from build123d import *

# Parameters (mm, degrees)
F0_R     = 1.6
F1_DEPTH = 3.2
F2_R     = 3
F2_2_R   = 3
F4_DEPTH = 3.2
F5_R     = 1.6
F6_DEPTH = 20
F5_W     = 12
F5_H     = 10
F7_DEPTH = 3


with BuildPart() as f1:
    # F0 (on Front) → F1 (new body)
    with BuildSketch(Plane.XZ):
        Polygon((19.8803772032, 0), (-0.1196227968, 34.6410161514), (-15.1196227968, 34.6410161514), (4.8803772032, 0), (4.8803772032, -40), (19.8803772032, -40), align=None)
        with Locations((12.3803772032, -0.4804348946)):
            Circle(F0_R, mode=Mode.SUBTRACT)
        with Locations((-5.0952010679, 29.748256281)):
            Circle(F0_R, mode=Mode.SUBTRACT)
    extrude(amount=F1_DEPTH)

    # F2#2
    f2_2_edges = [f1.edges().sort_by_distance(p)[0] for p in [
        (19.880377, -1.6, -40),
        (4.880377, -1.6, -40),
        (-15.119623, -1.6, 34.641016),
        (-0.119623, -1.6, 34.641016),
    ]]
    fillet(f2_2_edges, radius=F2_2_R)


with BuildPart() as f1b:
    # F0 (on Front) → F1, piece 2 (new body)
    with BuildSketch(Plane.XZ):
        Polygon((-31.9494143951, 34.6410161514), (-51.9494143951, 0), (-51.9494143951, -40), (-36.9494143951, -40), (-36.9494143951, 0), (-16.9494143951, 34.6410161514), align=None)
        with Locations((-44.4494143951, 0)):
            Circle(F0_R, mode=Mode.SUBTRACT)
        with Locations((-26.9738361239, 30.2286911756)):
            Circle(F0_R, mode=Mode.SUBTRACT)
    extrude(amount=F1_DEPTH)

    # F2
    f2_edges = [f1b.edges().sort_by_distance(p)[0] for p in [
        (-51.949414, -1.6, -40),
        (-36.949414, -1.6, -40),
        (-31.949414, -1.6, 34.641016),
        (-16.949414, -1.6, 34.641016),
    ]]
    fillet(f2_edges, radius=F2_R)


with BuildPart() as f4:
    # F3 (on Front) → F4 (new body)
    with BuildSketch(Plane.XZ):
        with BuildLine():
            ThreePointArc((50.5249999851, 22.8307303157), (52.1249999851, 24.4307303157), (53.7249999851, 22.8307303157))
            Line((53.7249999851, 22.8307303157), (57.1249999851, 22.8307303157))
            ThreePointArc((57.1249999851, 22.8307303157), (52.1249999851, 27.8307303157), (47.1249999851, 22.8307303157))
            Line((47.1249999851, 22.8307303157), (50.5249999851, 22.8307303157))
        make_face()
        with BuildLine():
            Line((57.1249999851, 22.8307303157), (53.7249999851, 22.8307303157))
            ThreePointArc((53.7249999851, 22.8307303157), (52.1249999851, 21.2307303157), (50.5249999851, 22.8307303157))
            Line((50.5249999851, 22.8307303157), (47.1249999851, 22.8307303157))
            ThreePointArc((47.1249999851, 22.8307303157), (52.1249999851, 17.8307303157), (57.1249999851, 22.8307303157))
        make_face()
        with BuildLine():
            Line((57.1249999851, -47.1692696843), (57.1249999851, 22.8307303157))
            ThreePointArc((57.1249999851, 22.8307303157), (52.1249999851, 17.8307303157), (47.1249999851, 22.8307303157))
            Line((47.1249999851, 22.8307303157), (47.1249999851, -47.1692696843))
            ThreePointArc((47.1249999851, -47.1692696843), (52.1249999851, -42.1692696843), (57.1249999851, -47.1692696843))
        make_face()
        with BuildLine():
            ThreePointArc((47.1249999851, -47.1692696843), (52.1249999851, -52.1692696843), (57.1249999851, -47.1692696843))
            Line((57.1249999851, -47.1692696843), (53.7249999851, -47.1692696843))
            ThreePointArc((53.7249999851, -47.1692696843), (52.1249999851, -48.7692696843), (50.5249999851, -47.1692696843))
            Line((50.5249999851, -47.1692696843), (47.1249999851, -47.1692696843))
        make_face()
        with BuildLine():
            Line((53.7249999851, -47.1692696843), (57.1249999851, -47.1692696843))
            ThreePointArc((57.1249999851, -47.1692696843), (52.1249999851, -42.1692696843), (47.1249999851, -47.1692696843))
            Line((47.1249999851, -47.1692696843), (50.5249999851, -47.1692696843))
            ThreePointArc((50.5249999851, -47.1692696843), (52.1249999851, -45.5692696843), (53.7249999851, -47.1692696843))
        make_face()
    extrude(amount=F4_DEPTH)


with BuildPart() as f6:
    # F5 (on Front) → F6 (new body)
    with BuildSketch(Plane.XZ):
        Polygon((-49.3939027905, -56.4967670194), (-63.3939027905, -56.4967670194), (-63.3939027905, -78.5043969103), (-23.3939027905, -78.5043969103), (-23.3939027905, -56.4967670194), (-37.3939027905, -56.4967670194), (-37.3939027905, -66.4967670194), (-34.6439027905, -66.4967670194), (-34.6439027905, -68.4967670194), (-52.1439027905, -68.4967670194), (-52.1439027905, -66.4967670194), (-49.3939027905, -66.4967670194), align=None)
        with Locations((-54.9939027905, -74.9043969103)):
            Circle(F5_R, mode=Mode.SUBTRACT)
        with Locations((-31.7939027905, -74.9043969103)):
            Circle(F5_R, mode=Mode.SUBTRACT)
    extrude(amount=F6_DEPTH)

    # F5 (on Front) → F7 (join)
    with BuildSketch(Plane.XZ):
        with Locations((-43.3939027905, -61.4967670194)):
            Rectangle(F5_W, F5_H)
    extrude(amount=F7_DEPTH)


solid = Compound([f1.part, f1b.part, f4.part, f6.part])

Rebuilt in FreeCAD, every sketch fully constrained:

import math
import FreeCAD as App
import Part
import Sketcher
from FreeCAD import Vector
Q = App.Units.Quantity


def edges_at(feature, points):
    """Names of the edges that pass closest to the given points."""
    edges = feature.Shape.Edges
    near = lambda p: min(range(len(edges)), key=lambda i: edges[i].distToShape(Part.Vertex(*p))[0])
    return sorted({f"Edge{near(p) + 1}" for p in points})


def add_polygon(sketch, points):
    """Adds a closed chain of lines whose ends are joined by coincident constraints."""
    first, n = sketch.GeometryCount, len(points)
    for a, b in zip(points, points[1:] + points[:1]):
        sketch.addGeometry(Part.LineSegment(App.Vector(*a, 0), App.Vector(*b, 0)), False)
    for i in range(n):
        sketch.addConstraint(Sketcher.Constraint("Coincident", first + i, 2, first + (i + 1) % n, 1))

doc = App.newDocument("Part")
params = doc.addObject("Spreadsheet::Sheet", "Params")
for row, (alias, value) in enumerate([
    ("sketch1_diameter", "3.2 mm"),
    ("sketch1_width", "15 mm"),
    ("sketch1_height", "40 mm"),
    ("sketch1_length", "40 mm"),
    ("pad1_length", "3.2 mm"),
    ("fillet_radius", "3 mm"),
    ("sketch2_diameter", "3.2 mm"),
    ("sketch2_width", "15 mm"),
    ("sketch2_height", "40 mm"),
    ("sketch2_length", "40 mm"),
    ("pad2_length", "3.2 mm"),
    ("fillet2_radius", "3 mm"),
    ("sketch3_radius", "5 mm"),
    ("sketch3_diameter", "3.2 mm"),
    ("sketch3_height", "70 mm"),
    ("pad3_length", "3.2 mm"),
    ("sketch4_diameter", "3.2 mm"),
    ("sketch4_width", "14 mm"),
    ("sketch4_width2", "40 mm"),
    ("sketch4_height", "10 mm"),
    ("sketch4_height2", "2 mm"),
    ("pad4_length", "20 mm"),
    ("sketch5_width", "12 mm"),
    ("sketch5_height", "10 mm"),
    ("pad5_length", "3 mm"),
], start=1):
    params.set(f"A{row}", alias)
    params.set(f"B{row}", "=" + value)
    params.setAlias(f"B{row}", alias)

body = doc.addObject("PartDesign::Body", "Body")

sketch1 = body.newObject("Sketcher::SketchObject", "Sketch")
sketch1.AttachmentSupport = (doc.getObject("XZ_Plane"), [""])
sketch1.MapMode = "FlatFace"
add_polygon(sketch1, [(19.880377, 0), (-0.119623, 34.641016), (-15.119623, 34.641016), (4.880377, 0), (4.880377, -40), (19.880377, -40)])
sketch1.addGeometry(Part.Circle(Vector(12.380377, -0.480435, 0), Vector(0, 0, 1), 1.6), False)
sketch1.addGeometry(Part.Circle(Vector(-5.095201, 29.748256, 0), Vector(0, 0, 1), 1.6), False)
sketch1.addConstraint([
    Sketcher.Constraint("Horizontal", 1),
    Sketcher.Constraint("Vertical", 3),
    Sketcher.Constraint("Horizontal", 4),
    Sketcher.Constraint("Vertical", 5),
    Sketcher.Constraint("Equal", 6, 7),
    Sketcher.Constraint("PointOnObject", 2, 2, -1),
    Sketcher.Constraint("PointOnObject", 5, 2, -1),
    Sketcher.Constraint("Parallel", 0, 2),
    Sketcher.Constraint("Diameter", 6, Q("3.2 mm")),
    Sketcher.Constraint("DistanceX", 1, 2, 1, 1, Q("15 mm")),
    Sketcher.Constraint("DistanceY", 3, 2, 3, 1, Q("40 mm")),
    Sketcher.Constraint("Angle", 0, Q("120 deg")),
    Sketcher.Constraint("Distance", 0, Q("40 mm")),
    Sketcher.Constraint("DistanceX", 0, 2, 6, 3, Q("12.5 mm")),
    Sketcher.Constraint("DistanceX", 7, 3, -1, 1, Q("5.095201 mm")),
    Sketcher.Constraint("DistanceX", 7, 3, 6, 3, Q("17.475578 mm")),
    Sketcher.Constraint("DistanceY", 6, 3, 7, 3, Q("30.228691 mm")),
    Sketcher.Constraint("DistanceY", 7, 3, 0, 2, Q("4.89276 mm")),
])
sketch1.setExpression("Constraints[14]", "Params.sketch1_diameter")
sketch1.setExpression("Constraints[15]", "Params.sketch1_width")
sketch1.setExpression("Constraints[16]", "Params.sketch1_height")
sketch1.setExpression("Constraints[18]", "Params.sketch1_length")
pad1 = body.newObject("PartDesign::Pad", "Pad")
pad1.Profile = sketch1
pad1.setExpression("Length", "Params.pad1_length")
doc.recompute()

fillet = body.newObject("PartDesign::Fillet", "Fillet")
fillet.Base = (pad1, edges_at(pad1, [
    (19.88, -1.6, -40),
    (4.88, -1.6, -40),
    (-15.12, -1.6, 34.641),
    (-0.12, -1.6, 34.641),
]))
fillet.setExpression("Radius", "Params.fillet_radius")
body2 = doc.addObject("PartDesign::Body", "Body001")

sketch2 = body2.newObject("Sketcher::SketchObject", "Sketch001")
sketch2.AttachmentSupport = (doc.getObject("XZ_Plane001"), [""])
sketch2.MapMode = "FlatFace"
add_polygon(sketch2, [(-31.949414, 34.641016), (-51.949414, 0), (-51.949414, -40), (-36.949414, -40), (-36.949414, 0), (-16.949414, 34.641016)])
sketch2.addGeometry(Part.Circle(Vector(-44.449414, 0, 0), Vector(0, 0, 1), 1.6), False)
sketch2.addGeometry(Part.Circle(Vector(-26.973836, 30.228691, 0), Vector(0, 0, 1), 1.6), False)
sketch2.addConstraint([
    Sketcher.Constraint("Vertical", 1),
    Sketcher.Constraint("Horizontal", 2),
    Sketcher.Constraint("Vertical", 3),
    Sketcher.Constraint("Horizontal", 5),
    Sketcher.Constraint("Equal", 6, 7),
    Sketcher.Constraint("PointOnObject", 6, 3, -1),
    Sketcher.Constraint("PointOnObject", 0, 2, -1),
    Sketcher.Constraint("PointOnObject", 3, 2, -1),
    Sketcher.Constraint("Parallel", 0, 4),
    Sketcher.Constraint("Diameter", 6, Q("3.2 mm")),
    Sketcher.Constraint("DistanceX", 2, 1, 2, 2, Q("15 mm")),
    Sketcher.Constraint("DistanceY", 1, 2, 1, 1, Q("40 mm")),
    Sketcher.Constraint("Angle", 0, Q("-120 deg")),
    Sketcher.Constraint("Distance", 0, Q("40 mm")),
    Sketcher.Constraint("DistanceX", 0, 2, 6, 3, Q("7.5 mm")),
    Sketcher.Constraint("DistanceY", -1, 1, 7, 3, Q("30.228691 mm")),
    Sketcher.Constraint("DistanceX", 6, 3, 7, 3, Q("17.475578 mm")),
    Sketcher.Constraint("DistanceX", 6, 3, -1, 1, Q("44.449414 mm")),
])
sketch2.setExpression("Constraints[15]", "Params.sketch2_diameter")
sketch2.setExpression("Constraints[16]", "Params.sketch2_width")
sketch2.setExpression("Constraints[17]", "Params.sketch2_height")
sketch2.setExpression("Constraints[19]", "Params.sketch2_length")
pad2 = body2.newObject("PartDesign::Pad", "Pad001")
pad2.Profile = sketch2
pad2.setExpression("Length", "Params.pad2_length")
doc.recompute()

fillet2 = body2.newObject("PartDesign::Fillet", "Fillet001")
fillet2.Base = (pad2, edges_at(pad2, [
    (-51.949, -1.6, -40),
    (-36.949, -1.6, -40),
    (-31.949, -1.6, 34.641),
    (-16.949, -1.6, 34.641),
]))
fillet2.setExpression("Radius", "Params.fillet2_radius")
body3 = doc.addObject("PartDesign::Body", "Body002")

sketch3 = body3.newObject("Sketcher::SketchObject", "Sketch002")
sketch3.AttachmentSupport = (doc.getObject("XZ_Plane002"), [""])
sketch3.MapMode = "FlatFace"
sketch3.addGeometry([
    Part.ArcOfCircle(Part.Circle(Vector(52.125, 22.83073, 0), Vector(0, 0, 1), 5), math.radians(0), math.radians(180)),
    Part.LineSegment(Vector(47.125, 22.83073, 0), Vector(47.125, -47.16927, 0)),
    Part.ArcOfCircle(Part.Circle(Vector(52.125, -47.16927, 0), Vector(0, 0, 1), 5), math.radians(180), math.radians(360)),
    Part.LineSegment(Vector(57.125, -47.16927, 0), Vector(57.125, 22.83073, 0)),
    Part.Circle(Vector(52.125, 22.83073, 0), Vector(0, 0, 1), 1.6),
    Part.Circle(Vector(52.125, -47.16927, 0), Vector(0, 0, 1), 1.6),
], False)
sketch3.addConstraint([
    Sketcher.Constraint("Tangent", 0, 2, 1, 1),
    Sketcher.Constraint("Tangent", 1, 2, 2, 1),
    Sketcher.Constraint("Tangent", 2, 2, 3, 1),
    Sketcher.Constraint("Tangent", 3, 2, 0, 1),
    Sketcher.Constraint("Vertical", 1),
    Sketcher.Constraint("Vertical", 3),
    Sketcher.Constraint("Coincident", 4, 3, 0, 3),
    Sketcher.Constraint("Coincident", 5, 3, 2, 3),
    Sketcher.Constraint("Equal", 4, 5),
    Sketcher.Constraint("Radius", 0, Q("5 mm")),
    Sketcher.Constraint("Diameter", 4, Q("3.2 mm")),
    Sketcher.Constraint("DistanceY", 1, 2, 1, 1, Q("70 mm")),
    Sketcher.Constraint("DistanceX", -1, 1, 0, 3, Q("52.125 mm")),
    Sketcher.Constraint("DistanceY", -1, 1, 0, 3, Q("22.83073 mm")),
])
sketch3.setExpression("Constraints[9]", "Params.sketch3_radius")
sketch3.setExpression("Constraints[10]", "Params.sketch3_diameter")
sketch3.setExpression("Constraints[11]", "Params.sketch3_height")
pad3 = body3.newObject("PartDesign::Pad", "Pad002")
pad3.Profile = sketch3
pad3.setExpression("Length", "Params.pad3_length")
body4 = doc.addObject("PartDesign::Body", "Body003")

sketch4 = body4.newObject("Sketcher::SketchObject", "Sketch003")
sketch4.AttachmentSupport = (doc.getObject("XZ_Plane003"), [""])
sketch4.MapMode = "FlatFace"
add_polygon(sketch4, [(-49.393903, -56.496767), (-63.393903, -56.496767), (-63.393903, -78.504397), (-23.393903, -78.504397), (-23.393903, -56.496767), (-37.393903, -56.496767), (-37.393903, -66.496767), (-34.643903, -66.496767), (-34.643903, -68.496767), (-52.143903, -68.496767), (-52.143903, -66.496767), (-49.393903, -66.496767)])
sketch4.addGeometry(Part.Circle(Vector(-54.993903, -74.904397, 0), Vector(0, 0, 1), 1.6), False)
sketch4.addGeometry(Part.Circle(Vector(-31.793903, -74.904397, 0), Vector(0, 0, 1), 1.6), False)
sketch4.addConstraint([
    Sketcher.Constraint("Horizontal", 0),
    Sketcher.Constraint("Vertical", 1),
    Sketcher.Constraint("Horizontal", 2),
    Sketcher.Constraint("Vertical", 3),
    Sketcher.Constraint("Horizontal", 4),
    Sketcher.Constraint("Vertical", 5),
    Sketcher.Constraint("Horizontal", 6),
    Sketcher.Constraint("Vertical", 7),
    Sketcher.Constraint("Horizontal", 8),
    Sketcher.Constraint("Vertical", 9),
    Sketcher.Constraint("Horizontal", 10),
    Sketcher.Constraint("Vertical", 11),
    Sketcher.Constraint("Equal", 12, 13),
    Sketcher.Constraint("Horizontal", 12, 3, 13, 3),
    Sketcher.Constraint("Horizontal", 0, 2, 3, 2),
    Sketcher.Constraint("Horizontal", 6, 2, 9, 2),
    Sketcher.Constraint("Equal", 0, 4),
    Sketcher.Constraint("Equal", 6, 10),
    Sketcher.Constraint("Diameter", 12, Q("3.2 mm")),
    Sketcher.Constraint("DistanceX", 0, 2, 0, 1, Q("14 mm")),
    Sketcher.Constraint("DistanceX", 2, 1, 2, 2, Q("40 mm")),
    Sketcher.Constraint("DistanceY", 5, 2, 5, 1, Q("10 mm")),
    Sketcher.Constraint("DistanceY", 7, 2, 7, 1, Q("2 mm")),
    Sketcher.Constraint("DistanceX", 8, 2, 8, 1, Q("17.5 mm")),
    Sketcher.Constraint("DistanceX", 12, 3, 13, 3, Q("23.2 mm")),
    Sketcher.Constraint("DistanceX", 0, 2, 12, 3, Q("8.4 mm")),
    Sketcher.Constraint("DistanceY", 1, 2, 12, 3, Q("3.6 mm")),
    Sketcher.Constraint("DistanceY", 1, 2, 1, 1, Q("22.00763 mm")),
    Sketcher.Constraint("DistanceX", 12, 3, -1, 1, Q("54.993903 mm")),
    Sketcher.Constraint("DistanceY", 12, 3, -1, 1, Q("74.904397 mm")),
])
sketch4.setExpression("Constraints[30]", "Params.sketch4_diameter")
sketch4.setExpression("Constraints[31]", "Params.sketch4_width")
sketch4.setExpression("Constraints[32]", "Params.sketch4_width2")
sketch4.setExpression("Constraints[33]", "Params.sketch4_height")
sketch4.setExpression("Constraints[34]", "Params.sketch4_height2")
pad4 = body4.newObject("PartDesign::Pad", "Pad003")
pad4.Profile = sketch4
pad4.setExpression("Length", "Params.pad4_length")

sketch5 = body4.newObject("Sketcher::SketchObject", "Sketch004")
sketch5.AttachmentSupport = (doc.getObject("XZ_Plane003"), [""])
sketch5.MapMode = "FlatFace"
add_polygon(sketch5, [(-49.393903, -56.496767), (-49.393903, -66.496767), (-37.393903, -66.496767), (-37.393903, -56.496767)])
sketch5.addConstraint([
    Sketcher.Constraint("Vertical", 0),
    Sketcher.Constraint("Horizontal", 1),
    Sketcher.Constraint("Vertical", 2),
    Sketcher.Constraint("Horizontal", 3),
    Sketcher.Constraint("DistanceX", 1, 1, 1, 2, Q("12 mm")),
    Sketcher.Constraint("DistanceY", 0, 2, 0, 1, Q("10 mm")),
    Sketcher.Constraint("DistanceX", 0, 2, -1, 1, Q("49.393903 mm")),
    Sketcher.Constraint("DistanceY", 0, 2, -1, 1, Q("66.496767 mm")),
])
sketch5.setExpression("Constraints[8]", "Params.sketch5_width")
sketch5.setExpression("Constraints[9]", "Params.sketch5_height")
pad5 = body4.newObject("PartDesign::Pad", "Pad004")
pad5.Profile = sketch5
pad5.setExpression("Length", "Params.pad5_length")

doc.recompute()
